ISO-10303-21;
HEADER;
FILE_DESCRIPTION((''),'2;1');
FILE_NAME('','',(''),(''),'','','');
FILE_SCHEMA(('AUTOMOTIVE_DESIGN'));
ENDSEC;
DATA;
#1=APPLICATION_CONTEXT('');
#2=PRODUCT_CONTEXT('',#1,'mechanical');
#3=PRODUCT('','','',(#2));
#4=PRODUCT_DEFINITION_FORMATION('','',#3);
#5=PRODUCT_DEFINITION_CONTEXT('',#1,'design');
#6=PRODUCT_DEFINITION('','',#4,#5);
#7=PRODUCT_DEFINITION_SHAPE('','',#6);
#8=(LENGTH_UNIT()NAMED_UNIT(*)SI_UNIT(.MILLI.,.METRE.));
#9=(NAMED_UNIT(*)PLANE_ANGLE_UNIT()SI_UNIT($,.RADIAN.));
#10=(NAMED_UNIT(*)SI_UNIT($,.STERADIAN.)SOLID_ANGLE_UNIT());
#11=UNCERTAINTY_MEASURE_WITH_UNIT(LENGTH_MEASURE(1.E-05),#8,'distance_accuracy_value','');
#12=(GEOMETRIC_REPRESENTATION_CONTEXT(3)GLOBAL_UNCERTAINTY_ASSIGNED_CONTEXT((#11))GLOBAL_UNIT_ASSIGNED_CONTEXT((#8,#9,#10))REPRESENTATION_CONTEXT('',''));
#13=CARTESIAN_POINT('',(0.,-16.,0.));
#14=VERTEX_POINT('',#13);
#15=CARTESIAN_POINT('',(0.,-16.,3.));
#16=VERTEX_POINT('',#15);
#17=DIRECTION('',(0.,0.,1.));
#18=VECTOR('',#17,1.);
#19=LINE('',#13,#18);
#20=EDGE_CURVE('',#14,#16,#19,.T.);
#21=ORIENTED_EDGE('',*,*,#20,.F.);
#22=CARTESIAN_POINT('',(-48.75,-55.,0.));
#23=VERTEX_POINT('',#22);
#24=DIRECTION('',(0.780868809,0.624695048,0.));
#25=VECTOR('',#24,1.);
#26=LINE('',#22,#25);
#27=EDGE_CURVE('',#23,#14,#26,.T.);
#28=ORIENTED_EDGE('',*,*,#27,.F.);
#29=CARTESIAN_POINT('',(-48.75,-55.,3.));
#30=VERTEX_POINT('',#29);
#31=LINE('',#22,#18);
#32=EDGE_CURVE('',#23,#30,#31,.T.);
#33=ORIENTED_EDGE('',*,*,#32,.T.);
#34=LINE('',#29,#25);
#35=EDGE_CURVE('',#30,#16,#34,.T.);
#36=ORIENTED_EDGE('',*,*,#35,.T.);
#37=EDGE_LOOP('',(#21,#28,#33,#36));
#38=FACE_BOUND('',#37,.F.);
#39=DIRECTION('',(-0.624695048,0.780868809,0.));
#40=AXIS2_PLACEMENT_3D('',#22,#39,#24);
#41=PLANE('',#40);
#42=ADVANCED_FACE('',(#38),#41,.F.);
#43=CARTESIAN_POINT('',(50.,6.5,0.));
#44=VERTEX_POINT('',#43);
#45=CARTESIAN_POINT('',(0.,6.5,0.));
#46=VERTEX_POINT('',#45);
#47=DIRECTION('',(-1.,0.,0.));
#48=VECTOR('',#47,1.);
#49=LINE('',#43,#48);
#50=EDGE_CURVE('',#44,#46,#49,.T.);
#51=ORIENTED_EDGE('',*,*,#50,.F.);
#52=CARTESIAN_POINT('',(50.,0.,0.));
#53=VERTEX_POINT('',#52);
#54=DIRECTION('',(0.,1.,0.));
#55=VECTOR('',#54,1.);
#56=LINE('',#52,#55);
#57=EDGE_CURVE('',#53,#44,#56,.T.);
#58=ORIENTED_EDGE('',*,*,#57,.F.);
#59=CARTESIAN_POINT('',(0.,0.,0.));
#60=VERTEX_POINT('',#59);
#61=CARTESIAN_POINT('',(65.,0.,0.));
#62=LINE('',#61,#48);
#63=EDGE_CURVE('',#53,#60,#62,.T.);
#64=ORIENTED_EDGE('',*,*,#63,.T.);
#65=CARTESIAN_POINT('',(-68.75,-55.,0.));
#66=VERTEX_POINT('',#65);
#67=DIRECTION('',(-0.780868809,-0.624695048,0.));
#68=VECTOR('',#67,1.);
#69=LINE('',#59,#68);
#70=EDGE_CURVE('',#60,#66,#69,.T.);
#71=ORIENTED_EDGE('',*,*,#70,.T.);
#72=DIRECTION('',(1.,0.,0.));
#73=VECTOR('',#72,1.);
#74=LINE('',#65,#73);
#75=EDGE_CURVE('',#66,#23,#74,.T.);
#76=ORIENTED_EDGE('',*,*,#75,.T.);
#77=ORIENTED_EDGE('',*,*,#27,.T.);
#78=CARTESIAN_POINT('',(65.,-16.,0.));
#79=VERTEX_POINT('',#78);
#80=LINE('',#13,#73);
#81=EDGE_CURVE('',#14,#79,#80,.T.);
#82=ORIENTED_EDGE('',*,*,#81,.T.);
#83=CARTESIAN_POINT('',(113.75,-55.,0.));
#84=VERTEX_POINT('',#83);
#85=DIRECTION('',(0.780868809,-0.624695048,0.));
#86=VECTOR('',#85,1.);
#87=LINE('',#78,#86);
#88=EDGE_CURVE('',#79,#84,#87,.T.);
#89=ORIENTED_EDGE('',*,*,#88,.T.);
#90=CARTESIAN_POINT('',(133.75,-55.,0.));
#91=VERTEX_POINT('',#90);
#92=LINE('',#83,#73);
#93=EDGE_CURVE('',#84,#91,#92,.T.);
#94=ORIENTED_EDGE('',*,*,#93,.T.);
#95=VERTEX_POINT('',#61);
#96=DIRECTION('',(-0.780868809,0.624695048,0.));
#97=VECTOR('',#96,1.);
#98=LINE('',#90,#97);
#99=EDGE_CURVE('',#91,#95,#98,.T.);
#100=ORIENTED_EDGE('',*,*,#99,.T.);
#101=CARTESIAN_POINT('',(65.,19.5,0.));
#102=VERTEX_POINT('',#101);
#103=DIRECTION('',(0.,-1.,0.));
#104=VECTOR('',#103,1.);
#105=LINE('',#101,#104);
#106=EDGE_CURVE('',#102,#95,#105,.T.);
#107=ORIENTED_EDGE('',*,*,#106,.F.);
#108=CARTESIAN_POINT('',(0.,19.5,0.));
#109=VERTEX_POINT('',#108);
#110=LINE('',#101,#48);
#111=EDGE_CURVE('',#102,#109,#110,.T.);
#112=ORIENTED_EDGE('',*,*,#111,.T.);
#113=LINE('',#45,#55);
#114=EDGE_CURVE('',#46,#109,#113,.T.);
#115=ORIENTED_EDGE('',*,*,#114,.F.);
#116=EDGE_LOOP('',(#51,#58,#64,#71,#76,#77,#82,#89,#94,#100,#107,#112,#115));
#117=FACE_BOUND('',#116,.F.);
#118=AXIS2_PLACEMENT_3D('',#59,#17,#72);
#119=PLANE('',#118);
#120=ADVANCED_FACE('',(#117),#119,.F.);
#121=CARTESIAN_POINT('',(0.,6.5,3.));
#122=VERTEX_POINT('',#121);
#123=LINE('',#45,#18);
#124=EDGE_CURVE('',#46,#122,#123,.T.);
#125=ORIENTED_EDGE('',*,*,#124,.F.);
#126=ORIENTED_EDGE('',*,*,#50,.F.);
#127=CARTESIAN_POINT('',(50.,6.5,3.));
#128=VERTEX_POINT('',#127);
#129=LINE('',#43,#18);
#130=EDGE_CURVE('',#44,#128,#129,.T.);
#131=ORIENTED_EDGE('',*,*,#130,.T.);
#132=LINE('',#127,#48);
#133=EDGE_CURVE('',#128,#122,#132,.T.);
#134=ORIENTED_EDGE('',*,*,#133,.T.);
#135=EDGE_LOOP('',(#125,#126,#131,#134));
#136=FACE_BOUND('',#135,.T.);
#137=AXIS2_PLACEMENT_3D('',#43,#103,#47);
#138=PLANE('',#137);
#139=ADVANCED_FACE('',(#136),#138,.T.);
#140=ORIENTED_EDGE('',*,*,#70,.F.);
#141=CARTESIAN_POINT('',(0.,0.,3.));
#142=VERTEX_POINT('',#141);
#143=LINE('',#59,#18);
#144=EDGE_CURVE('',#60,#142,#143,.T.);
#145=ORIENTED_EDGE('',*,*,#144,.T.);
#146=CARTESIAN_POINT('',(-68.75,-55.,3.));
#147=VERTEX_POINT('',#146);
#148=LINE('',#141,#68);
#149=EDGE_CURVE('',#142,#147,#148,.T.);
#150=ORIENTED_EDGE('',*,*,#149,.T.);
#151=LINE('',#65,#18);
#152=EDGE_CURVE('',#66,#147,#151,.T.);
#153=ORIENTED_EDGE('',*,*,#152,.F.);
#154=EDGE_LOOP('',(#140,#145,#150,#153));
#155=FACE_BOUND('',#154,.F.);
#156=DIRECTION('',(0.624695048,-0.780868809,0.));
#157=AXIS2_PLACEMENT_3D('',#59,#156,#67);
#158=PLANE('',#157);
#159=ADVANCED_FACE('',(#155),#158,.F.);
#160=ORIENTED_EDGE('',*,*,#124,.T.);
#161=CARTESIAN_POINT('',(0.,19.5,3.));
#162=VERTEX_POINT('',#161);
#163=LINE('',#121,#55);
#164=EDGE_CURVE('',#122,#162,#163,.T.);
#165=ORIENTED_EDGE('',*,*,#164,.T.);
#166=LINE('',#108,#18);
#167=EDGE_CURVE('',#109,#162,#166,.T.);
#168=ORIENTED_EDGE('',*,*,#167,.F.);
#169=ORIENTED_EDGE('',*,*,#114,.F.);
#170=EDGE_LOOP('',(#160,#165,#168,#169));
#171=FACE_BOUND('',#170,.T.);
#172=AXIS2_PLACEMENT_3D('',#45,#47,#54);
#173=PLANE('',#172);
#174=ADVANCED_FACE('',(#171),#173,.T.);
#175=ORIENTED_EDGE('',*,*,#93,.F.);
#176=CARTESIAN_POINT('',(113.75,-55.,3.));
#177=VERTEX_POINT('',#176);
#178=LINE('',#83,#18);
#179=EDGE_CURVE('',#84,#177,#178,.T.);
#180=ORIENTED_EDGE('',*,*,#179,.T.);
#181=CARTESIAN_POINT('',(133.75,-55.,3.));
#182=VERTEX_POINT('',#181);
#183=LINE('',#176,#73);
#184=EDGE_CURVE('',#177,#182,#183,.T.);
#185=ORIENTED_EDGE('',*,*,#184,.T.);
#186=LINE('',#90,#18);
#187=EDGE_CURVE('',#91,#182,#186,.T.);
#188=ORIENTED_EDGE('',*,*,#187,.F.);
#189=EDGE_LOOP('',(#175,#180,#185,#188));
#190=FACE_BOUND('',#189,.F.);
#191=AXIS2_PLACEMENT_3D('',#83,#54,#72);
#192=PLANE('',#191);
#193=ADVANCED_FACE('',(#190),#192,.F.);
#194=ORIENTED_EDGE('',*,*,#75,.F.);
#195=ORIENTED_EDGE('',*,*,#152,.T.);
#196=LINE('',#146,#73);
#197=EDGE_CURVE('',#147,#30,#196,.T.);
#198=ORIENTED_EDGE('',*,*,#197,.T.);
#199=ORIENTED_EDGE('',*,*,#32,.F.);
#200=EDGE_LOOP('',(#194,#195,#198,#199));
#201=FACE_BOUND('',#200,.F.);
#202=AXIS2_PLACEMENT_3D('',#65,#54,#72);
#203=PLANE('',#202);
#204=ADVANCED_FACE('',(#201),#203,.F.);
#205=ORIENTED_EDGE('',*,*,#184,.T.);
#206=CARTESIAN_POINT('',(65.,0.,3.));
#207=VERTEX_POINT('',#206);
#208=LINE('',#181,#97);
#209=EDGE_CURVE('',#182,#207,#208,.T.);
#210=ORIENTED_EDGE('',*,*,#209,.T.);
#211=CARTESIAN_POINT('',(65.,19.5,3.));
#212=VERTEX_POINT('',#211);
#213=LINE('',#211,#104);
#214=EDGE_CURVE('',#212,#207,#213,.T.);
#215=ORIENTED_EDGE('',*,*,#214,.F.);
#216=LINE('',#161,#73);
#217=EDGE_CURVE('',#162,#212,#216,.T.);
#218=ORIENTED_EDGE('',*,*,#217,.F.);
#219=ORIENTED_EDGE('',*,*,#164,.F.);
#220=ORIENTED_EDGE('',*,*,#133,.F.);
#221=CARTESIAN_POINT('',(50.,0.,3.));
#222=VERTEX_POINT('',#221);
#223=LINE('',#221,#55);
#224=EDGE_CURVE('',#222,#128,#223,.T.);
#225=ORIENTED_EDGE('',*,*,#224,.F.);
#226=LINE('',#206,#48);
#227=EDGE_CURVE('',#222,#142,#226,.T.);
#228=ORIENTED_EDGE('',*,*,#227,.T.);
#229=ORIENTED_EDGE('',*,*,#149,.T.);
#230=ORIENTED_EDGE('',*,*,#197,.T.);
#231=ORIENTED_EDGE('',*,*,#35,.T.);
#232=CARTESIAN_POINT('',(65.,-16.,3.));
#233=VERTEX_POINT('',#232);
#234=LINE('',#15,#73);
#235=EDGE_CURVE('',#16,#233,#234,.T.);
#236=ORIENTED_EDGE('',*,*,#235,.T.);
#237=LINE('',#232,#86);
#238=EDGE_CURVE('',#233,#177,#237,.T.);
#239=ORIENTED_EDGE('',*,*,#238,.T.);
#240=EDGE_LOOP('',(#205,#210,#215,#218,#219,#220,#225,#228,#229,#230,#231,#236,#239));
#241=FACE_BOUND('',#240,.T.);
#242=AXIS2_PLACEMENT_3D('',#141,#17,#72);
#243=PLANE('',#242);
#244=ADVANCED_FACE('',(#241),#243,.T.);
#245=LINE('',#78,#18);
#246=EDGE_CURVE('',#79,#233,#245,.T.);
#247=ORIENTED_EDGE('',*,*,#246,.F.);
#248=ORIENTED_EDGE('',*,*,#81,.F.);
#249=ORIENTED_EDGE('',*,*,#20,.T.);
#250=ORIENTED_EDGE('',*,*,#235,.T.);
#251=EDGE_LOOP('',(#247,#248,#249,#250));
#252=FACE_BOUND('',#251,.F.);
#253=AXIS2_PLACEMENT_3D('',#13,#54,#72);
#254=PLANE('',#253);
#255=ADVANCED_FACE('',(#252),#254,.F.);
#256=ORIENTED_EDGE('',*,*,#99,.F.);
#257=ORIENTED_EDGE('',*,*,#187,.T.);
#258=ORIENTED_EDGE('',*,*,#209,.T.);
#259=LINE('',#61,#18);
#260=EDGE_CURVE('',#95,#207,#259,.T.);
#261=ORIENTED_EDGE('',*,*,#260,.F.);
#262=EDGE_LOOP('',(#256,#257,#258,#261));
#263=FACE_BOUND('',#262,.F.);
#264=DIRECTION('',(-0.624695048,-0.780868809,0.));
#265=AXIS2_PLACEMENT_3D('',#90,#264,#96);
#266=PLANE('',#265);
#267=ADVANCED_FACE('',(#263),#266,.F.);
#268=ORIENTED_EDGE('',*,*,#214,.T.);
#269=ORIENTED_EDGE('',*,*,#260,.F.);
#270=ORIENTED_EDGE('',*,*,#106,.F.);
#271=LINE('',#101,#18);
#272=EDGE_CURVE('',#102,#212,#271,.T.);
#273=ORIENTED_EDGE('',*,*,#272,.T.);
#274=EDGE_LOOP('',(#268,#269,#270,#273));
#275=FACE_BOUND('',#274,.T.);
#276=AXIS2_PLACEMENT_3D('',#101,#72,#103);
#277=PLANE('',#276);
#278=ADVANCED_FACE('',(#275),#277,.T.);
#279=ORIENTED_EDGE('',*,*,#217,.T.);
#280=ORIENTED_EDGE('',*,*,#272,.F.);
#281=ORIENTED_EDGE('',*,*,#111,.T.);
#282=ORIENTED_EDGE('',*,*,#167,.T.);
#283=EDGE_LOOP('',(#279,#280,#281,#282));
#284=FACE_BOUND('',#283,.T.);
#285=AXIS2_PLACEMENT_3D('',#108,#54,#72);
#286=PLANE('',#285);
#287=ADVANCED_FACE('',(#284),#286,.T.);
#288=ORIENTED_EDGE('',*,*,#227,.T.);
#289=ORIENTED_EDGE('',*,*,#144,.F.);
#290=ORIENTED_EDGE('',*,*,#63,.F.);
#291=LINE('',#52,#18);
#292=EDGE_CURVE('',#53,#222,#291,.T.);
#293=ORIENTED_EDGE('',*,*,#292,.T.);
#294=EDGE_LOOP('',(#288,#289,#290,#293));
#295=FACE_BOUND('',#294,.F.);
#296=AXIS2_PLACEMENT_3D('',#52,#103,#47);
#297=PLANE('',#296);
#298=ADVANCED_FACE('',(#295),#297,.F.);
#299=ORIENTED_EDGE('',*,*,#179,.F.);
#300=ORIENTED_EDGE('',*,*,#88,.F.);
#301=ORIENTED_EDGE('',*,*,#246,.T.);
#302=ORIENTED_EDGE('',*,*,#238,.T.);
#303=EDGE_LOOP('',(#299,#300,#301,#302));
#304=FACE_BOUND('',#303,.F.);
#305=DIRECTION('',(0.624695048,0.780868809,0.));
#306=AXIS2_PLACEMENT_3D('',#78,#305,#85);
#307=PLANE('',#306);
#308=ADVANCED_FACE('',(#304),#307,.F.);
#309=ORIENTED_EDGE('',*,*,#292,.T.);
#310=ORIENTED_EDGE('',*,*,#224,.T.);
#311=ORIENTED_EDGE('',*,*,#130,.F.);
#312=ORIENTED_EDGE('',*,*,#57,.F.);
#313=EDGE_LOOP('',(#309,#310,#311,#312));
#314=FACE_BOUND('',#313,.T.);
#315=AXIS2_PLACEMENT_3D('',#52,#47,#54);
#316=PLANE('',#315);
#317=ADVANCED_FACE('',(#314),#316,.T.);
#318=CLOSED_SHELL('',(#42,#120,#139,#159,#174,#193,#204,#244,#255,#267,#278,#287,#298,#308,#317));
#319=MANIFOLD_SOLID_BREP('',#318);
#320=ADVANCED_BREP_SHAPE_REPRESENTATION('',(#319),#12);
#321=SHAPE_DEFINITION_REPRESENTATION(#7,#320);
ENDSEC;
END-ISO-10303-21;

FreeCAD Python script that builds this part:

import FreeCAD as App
import Part
import Sketcher
from FreeCAD import Vector

doc = App.newDocument("Part")
params = doc.addObject("Spreadsheet::Sheet", "Params")
for row, (alias, value) in enumerate([
    ("sketch1_width", "50 mm"),
    ("sketch1_width2", "20 mm"),
    ("sketch1_height", "13 mm"),
    ("sketch1_height2", "6.5 mm"),
    ("pad1_length", "3 mm"),
], start=1):
    params.set(f"A{row}", alias)
    params.set(f"B{row}", "=" + value)
    params.setAlias(f"B{row}", alias)

body = doc.addObject("PartDesign::Body", "Body")

# Sketch on XY plane
sketch1 = body.newObject("Sketcher::SketchObject", "Sketch")
sketch1.AttachmentSupport = (doc.getObject("XY_Plane"), [""])
sketch1.MapMode = "FlatFace"
sketch1.addGeometry(Part.LineSegment(Vector(0, 20, 0), Vector(0, 6, 0)), False)
sketch1.addGeometry(Part.LineSegment(Vector(0, 6, 0), Vector(50, 6, 0)), False)
sketch1.addGeometry(Part.LineSegment(Vector(50, 6, 0), Vector(50, 0, 0)), False)
sketch1.addGeometry(Part.LineSegment(Vector(50, 0, 0), Vector(0, 0, 0)), False)
sketch1.addGeometry(Part.LineSegment(Vector(0, 0, 0), Vector(-69, -55, 0)), False)
sketch1.addGeometry(Part.LineSegment(Vector(-69, -55, 0), Vector(-49, -55, 0)), False)
sketch1.addGeometry(Part.LineSegment(Vector(-49, -55, 0), Vector(0, -16, 0)), False)
sketch1.addGeometry(Part.LineSegment(Vector(0, -16, 0), Vector(65, -16, 0)), False)
sketch1.addGeometry(Part.LineSegment(Vector(65, -16, 0), Vector(114, -55, 0)), False)
sketch1.addGeometry(Part.LineSegment(Vector(114, -55, 0), Vector(134, -55, 0)), False)
sketch1.addGeometry(Part.LineSegment(Vector(134, -55, 0), Vector(65, 0, 0)), False)
sketch1.addGeometry(Part.LineSegment(Vector(65, 0, 0), Vector(65, 20, 0)), False)
sketch1.addGeometry(Part.LineSegment(Vector(65, 20, 0), Vector(0, 20, 0)), False)
sketch1.addConstraint(Sketcher.Constraint("Coincident", 0, 2, 1, 1))
sketch1.addConstraint(Sketcher.Constraint("Coincident", 1, 2, 2, 1))
sketch1.addConstraint(Sketcher.Constraint("Coincident", 2, 2, 3, 1))
sketch1.addConstraint(Sketcher.Constraint("Coincident", 3, 2, 4, 1))
sketch1.addConstraint(Sketcher.Constraint("Coincident", 4, 2, 5, 1))
sketch1.addConstraint(Sketcher.Constraint("Coincident", 5, 2, 6, 1))
sketch1.addConstraint(Sketcher.Constraint("Coincident", 6, 2, 7, 1))
sketch1.addConstraint(Sketcher.Constraint("Coincident", 7, 2, 8, 1))
sketch1.addConstraint(Sketcher.Constraint("Coincident", 8, 2, 9, 1))
sketch1.addConstraint(Sketcher.Constraint("Coincident", 9, 2, 10, 1))
sketch1.addConstraint(Sketcher.Constraint("Coincident", 10, 2, 11, 1))
sketch1.addConstraint(Sketcher.Constraint("Coincident", 11, 2, 12, 1))
sketch1.addConstraint(Sketcher.Constraint("Coincident", 12, 2, 0, 1))
sketch1.addConstraint(Sketcher.Constraint("Vertical", 0))
sketch1.addConstraint(Sketcher.Constraint("Horizontal", 1))
sketch1.addConstraint(Sketcher.Constraint("Vertical", 2))
sketch1.addConstraint(Sketcher.Constraint("Horizontal", 3))
sketch1.addConstraint(Sketcher.Constraint("Horizontal", 5))
sketch1.addConstraint(Sketcher.Constraint("Horizontal", 7))
sketch1.addConstraint(Sketcher.Constraint("Horizontal", 9))
sketch1.addConstraint(Sketcher.Constraint("Vertical", 11))
sketch1.addConstraint(Sketcher.Constraint("Horizontal", 12))
sketch1.addConstraint(Sketcher.Constraint("Coincident", 3, 2, -1, 1))
sketch1.addConstraint(Sketcher.Constraint("PointOnObject", 0, 2, -2))
sketch1.addConstraint(Sketcher.Constraint("PointOnObject", 6, 2, -2))
sketch1.addConstraint(Sketcher.Constraint("PointOnObject", 10, 2, -1))
sketch1.addConstraint(Sketcher.Constraint("Parallel", 4, 6))
sketch1.addConstraint(Sketcher.Constraint("Parallel", 8, 10))
sketch1.addConstraint(Sketcher.Constraint("Horizontal", 5, 2, 8, 2))
sketch1.addConstraint(Sketcher.Constraint("Vertical", 7, 2, 10, 2))
sketch1.addConstraint(Sketcher.Constraint("Equal", 5, 9))
sketch1.addConstraint(Sketcher.Constraint("DistanceX", 1, 1, 1, 2, 50.0))
sketch1.addConstraint(Sketcher.Constraint("DistanceX", 5, 1, 5, 2, 20.0))
sketch1.addConstraint(Sketcher.Constraint("DistanceY", 0, 2, 0, 1, 13.0))
sketch1.addConstraint(Sketcher.Constraint("DistanceY", 2, 2, 2, 1, 6.5))
sketch1.addConstraint(Sketcher.Constraint("DistanceY", 4, 2, -1, 1, 55.0))
sketch1.addConstraint(Sketcher.Constraint("DistanceY", 6, 2, -1, 1, 16.0))
sketch1.addConstraint(Sketcher.Constraint("DistanceX", 2, 2, 7, 2, 15.0))
sketch1.setExpression("Constraints[31]", "Params.sketch1_width")
sketch1.setExpression("Constraints[32]", "Params.sketch1_width2")
sketch1.setExpression("Constraints[33]", "Params.sketch1_height")
sketch1.setExpression("Constraints[34]", "Params.sketch1_height2")
pad1 = body.newObject("PartDesign::Pad", "Pad")
pad1.Profile = sketch1
pad1.setExpression("Length", "Params.pad1_length")

doc.recompute()
